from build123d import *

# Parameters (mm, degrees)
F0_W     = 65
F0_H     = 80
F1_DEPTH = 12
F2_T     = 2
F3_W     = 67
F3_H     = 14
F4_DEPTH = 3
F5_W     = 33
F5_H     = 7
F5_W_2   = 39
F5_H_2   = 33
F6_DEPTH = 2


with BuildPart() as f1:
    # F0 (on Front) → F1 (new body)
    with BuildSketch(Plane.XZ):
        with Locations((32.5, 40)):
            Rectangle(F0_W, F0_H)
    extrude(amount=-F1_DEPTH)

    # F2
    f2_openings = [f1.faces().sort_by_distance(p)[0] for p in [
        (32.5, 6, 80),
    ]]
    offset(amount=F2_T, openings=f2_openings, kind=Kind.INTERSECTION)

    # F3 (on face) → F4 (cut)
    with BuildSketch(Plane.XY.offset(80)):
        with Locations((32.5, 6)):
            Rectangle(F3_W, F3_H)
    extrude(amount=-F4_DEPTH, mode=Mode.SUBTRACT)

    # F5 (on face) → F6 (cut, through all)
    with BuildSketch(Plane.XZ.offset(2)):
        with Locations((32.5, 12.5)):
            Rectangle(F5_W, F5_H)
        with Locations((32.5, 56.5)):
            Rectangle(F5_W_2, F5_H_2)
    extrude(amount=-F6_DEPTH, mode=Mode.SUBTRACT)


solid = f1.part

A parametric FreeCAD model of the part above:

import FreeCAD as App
import Part
import Sketcher

V = App.Vector


def faces_at(feature, points):
    """Names of the faces that lie closest to the given points."""
    faces = feature.Shape.Faces
    near = lambda p: min(range(len(faces)), key=lambda i: faces[i].distToShape(Part.Vertex(*p))[0])
    return sorted({f"Face{near(p) + 1}" for p in points})


def add_polygon(sketch, points):
    """Adds a closed chain of lines whose ends are joined by coincident constraints."""
    first, n = sketch.GeometryCount, len(points)
    for a, b in zip(points, points[1:] + points[:1]):
        sketch.addGeometry(Part.LineSegment(App.Vector(*a, 0), App.Vector(*b, 0)), False)
    for i in range(n):
        sketch.addConstraint(Sketcher.Constraint("Coincident", first + i, 2, first + (i + 1) % n, 1))

doc = App.newDocument("Part")
params = doc.addObject("Spreadsheet::Sheet", "Params")
for row, (alias, value) in enumerate([
    ("sketch1_width", "65 mm"),
    ("sketch1_height", "80 mm"),
    ("pad1_length", "12 mm"),
    ("thickness_wall", "2 mm"),
    ("sketch2_width", "67 mm"),
    ("sketch2_height", "14 mm"),
    ("pocket1_length", "3 mm"),
    ("sketch3_width", "33 mm"),
    ("sketch3_width2", "39 mm"),
    ("sketch3_height", "7 mm"),
    ("pocket2_length", "2 mm"),
], start=1):
    params.set(f"A{row}", alias)
    params.set(f"B{row}", "=" + value)
    params.setAlias(f"B{row}", alias)

body = doc.addObject("PartDesign::Body", "Body")

# Sketch on XZ plane
sketch1 = body.newObject("Sketcher::SketchObject", "Sketch")
sketch1.AttachmentSupport = (doc.getObject("XZ_Plane"), [""])
sketch1.MapMode = "FlatFace"
add_polygon(sketch1, [(0, 80), (0, 0), (65, 0), (65, 80)])  # lines 0-3
sketch1.addConstraint([
    Sketcher.Constraint("Vertical", 0),
    Sketcher.Constraint("Horizontal", 1),
    Sketcher.Constraint("Vertical", 2),
    Sketcher.Constraint("Horizontal", 3),
    Sketcher.Constraint("Coincident", 0, 2, -1, 1),
    Sketcher.Constraint("DistanceX", 1, 1, 1, 2, 65.0),
    Sketcher.Constraint("DistanceY", 0, 2, 0, 1, 80.0),
])
sketch1.setExpression("Constraints[9]", "Params.sketch1_width")
sketch1.setExpression("Constraints[10]", "Params.sketch1_height")
pad1 = body.newObject("PartDesign::Pad", "Pad")
pad1.Profile = sketch1
pad1.setExpression("Length", "Params.pad1_length")
pad1.Reversed = True
doc.recompute()

thickness = body.newObject("PartDesign::Thickness", "Thickness")
thickness.Base = (pad1, faces_at(pad1, [(32.5, 6, 80)]))
thickness.setExpression("Value", "Params.thickness_wall")
thickness.Reversed = False
thickness.Join = "Intersection"

# Sketch on XY plane
sketch2 = body.newObject("Sketcher::SketchObject", "Sketch001")
sketch2.AttachmentSupport = (doc.getObject("XY_Plane"), [""])
sketch2.MapMode = "FlatFace"
sketch2.AttachmentOffset = App.Placement(V(0, 0, 80), App.Rotation())
add_polygon(sketch2, [(-1, 13), (-1, -1), (66, -1), (66, 13)])  # lines 0-3
sketch2.addConstraint([
    Sketcher.Constraint("Vertical", 0),
    Sketcher.Constraint("Horizontal", 1),
    Sketcher.Constraint("Vertical", 2),
    Sketcher.Constraint("Horizontal", 3),
    Sketcher.Constraint("DistanceX", 1, 1, 1, 2, 67.0),
    Sketcher.Constraint("DistanceY", 0, 2, 0, 1, 14.0),
    Sketcher.Constraint("DistanceX", 0, 2, -1, 1, 1.0),
    Sketcher.Constraint("DistanceY", 0, 2, -1, 1, 1.0),
])
sketch2.setExpression("Constraints[8]", "Params.sketch2_width")
sketch2.setExpression("Constraints[9]", "Params.sketch2_height")
pocket1 = body.newObject("PartDesign::Pocket", "Pocket")
pocket1.Profile = sketch2
pocket1.setExpression("Length", "Params.pocket1_length")

# Sketch on XZ plane
sketch3 = body.newObject("Sketcher::SketchObject", "Sketch002")
sketch3.AttachmentSupport = (doc.getObject("XZ_Plane"), [""])
sketch3.MapMode = "FlatFace"
sketch3.AttachmentOffset = App.Placement(V(0, 0, 2), App.Rotation())
add_polygon(sketch3, [(16, 16), (16, 9), (49, 9), (49, 16)])  # lines 0-3
add_polygon(sketch3, [(13, 73), (13, 40), (52, 40), (52, 73)])  # lines 4-7
sketch3.addConstraint([
    Sketcher.Constraint("Vertical", 0),
    Sketcher.Constraint("Horizontal", 1),
    Sketcher.Constraint("Vertical", 2),
    Sketcher.Constraint("Horizontal", 3),
    Sketcher.Constraint("Vertical", 4),
    Sketcher.Constraint("Horizontal", 5),
    Sketcher.Constraint("Vertical", 6),
    Sketcher.Constraint("Horizontal", 7),
    Sketcher.Constraint("Equal", 3, 4),
    Sketcher.Constraint("DistanceX", 1, 1, 1, 2, 33.0),
    Sketcher.Constraint("DistanceX", 5, 1, 5, 2, 39.0),
    Sketcher.Constraint("DistanceY", 0, 2, 0, 1, 7.0),
    Sketcher.Constraint("DistanceX", -1, 1, 0, 2, 16.0),
    Sketcher.Constraint("DistanceY", -1, 1, 0, 2, 9.0),
    Sketcher.Constraint("DistanceX", -1, 1, 4, 2, 13.0),
    Sketcher.Constraint("DistanceY", -1, 1, 4, 2, 40.0),
])
sketch3.setExpression("Constraints[17]", "Params.sketch3_width")
sketch3.setExpression("Constraints[18]", "Params.sketch3_width2")
sketch3.setExpression("Constraints[19]", "Params.sketch3_height")
pocket2 = body.newObject("PartDesign::Pocket", "Pocket001")
pocket2.Profile = sketch3
pocket2.setExpression("Length", "Params.pocket2_length")

doc.recompute()
